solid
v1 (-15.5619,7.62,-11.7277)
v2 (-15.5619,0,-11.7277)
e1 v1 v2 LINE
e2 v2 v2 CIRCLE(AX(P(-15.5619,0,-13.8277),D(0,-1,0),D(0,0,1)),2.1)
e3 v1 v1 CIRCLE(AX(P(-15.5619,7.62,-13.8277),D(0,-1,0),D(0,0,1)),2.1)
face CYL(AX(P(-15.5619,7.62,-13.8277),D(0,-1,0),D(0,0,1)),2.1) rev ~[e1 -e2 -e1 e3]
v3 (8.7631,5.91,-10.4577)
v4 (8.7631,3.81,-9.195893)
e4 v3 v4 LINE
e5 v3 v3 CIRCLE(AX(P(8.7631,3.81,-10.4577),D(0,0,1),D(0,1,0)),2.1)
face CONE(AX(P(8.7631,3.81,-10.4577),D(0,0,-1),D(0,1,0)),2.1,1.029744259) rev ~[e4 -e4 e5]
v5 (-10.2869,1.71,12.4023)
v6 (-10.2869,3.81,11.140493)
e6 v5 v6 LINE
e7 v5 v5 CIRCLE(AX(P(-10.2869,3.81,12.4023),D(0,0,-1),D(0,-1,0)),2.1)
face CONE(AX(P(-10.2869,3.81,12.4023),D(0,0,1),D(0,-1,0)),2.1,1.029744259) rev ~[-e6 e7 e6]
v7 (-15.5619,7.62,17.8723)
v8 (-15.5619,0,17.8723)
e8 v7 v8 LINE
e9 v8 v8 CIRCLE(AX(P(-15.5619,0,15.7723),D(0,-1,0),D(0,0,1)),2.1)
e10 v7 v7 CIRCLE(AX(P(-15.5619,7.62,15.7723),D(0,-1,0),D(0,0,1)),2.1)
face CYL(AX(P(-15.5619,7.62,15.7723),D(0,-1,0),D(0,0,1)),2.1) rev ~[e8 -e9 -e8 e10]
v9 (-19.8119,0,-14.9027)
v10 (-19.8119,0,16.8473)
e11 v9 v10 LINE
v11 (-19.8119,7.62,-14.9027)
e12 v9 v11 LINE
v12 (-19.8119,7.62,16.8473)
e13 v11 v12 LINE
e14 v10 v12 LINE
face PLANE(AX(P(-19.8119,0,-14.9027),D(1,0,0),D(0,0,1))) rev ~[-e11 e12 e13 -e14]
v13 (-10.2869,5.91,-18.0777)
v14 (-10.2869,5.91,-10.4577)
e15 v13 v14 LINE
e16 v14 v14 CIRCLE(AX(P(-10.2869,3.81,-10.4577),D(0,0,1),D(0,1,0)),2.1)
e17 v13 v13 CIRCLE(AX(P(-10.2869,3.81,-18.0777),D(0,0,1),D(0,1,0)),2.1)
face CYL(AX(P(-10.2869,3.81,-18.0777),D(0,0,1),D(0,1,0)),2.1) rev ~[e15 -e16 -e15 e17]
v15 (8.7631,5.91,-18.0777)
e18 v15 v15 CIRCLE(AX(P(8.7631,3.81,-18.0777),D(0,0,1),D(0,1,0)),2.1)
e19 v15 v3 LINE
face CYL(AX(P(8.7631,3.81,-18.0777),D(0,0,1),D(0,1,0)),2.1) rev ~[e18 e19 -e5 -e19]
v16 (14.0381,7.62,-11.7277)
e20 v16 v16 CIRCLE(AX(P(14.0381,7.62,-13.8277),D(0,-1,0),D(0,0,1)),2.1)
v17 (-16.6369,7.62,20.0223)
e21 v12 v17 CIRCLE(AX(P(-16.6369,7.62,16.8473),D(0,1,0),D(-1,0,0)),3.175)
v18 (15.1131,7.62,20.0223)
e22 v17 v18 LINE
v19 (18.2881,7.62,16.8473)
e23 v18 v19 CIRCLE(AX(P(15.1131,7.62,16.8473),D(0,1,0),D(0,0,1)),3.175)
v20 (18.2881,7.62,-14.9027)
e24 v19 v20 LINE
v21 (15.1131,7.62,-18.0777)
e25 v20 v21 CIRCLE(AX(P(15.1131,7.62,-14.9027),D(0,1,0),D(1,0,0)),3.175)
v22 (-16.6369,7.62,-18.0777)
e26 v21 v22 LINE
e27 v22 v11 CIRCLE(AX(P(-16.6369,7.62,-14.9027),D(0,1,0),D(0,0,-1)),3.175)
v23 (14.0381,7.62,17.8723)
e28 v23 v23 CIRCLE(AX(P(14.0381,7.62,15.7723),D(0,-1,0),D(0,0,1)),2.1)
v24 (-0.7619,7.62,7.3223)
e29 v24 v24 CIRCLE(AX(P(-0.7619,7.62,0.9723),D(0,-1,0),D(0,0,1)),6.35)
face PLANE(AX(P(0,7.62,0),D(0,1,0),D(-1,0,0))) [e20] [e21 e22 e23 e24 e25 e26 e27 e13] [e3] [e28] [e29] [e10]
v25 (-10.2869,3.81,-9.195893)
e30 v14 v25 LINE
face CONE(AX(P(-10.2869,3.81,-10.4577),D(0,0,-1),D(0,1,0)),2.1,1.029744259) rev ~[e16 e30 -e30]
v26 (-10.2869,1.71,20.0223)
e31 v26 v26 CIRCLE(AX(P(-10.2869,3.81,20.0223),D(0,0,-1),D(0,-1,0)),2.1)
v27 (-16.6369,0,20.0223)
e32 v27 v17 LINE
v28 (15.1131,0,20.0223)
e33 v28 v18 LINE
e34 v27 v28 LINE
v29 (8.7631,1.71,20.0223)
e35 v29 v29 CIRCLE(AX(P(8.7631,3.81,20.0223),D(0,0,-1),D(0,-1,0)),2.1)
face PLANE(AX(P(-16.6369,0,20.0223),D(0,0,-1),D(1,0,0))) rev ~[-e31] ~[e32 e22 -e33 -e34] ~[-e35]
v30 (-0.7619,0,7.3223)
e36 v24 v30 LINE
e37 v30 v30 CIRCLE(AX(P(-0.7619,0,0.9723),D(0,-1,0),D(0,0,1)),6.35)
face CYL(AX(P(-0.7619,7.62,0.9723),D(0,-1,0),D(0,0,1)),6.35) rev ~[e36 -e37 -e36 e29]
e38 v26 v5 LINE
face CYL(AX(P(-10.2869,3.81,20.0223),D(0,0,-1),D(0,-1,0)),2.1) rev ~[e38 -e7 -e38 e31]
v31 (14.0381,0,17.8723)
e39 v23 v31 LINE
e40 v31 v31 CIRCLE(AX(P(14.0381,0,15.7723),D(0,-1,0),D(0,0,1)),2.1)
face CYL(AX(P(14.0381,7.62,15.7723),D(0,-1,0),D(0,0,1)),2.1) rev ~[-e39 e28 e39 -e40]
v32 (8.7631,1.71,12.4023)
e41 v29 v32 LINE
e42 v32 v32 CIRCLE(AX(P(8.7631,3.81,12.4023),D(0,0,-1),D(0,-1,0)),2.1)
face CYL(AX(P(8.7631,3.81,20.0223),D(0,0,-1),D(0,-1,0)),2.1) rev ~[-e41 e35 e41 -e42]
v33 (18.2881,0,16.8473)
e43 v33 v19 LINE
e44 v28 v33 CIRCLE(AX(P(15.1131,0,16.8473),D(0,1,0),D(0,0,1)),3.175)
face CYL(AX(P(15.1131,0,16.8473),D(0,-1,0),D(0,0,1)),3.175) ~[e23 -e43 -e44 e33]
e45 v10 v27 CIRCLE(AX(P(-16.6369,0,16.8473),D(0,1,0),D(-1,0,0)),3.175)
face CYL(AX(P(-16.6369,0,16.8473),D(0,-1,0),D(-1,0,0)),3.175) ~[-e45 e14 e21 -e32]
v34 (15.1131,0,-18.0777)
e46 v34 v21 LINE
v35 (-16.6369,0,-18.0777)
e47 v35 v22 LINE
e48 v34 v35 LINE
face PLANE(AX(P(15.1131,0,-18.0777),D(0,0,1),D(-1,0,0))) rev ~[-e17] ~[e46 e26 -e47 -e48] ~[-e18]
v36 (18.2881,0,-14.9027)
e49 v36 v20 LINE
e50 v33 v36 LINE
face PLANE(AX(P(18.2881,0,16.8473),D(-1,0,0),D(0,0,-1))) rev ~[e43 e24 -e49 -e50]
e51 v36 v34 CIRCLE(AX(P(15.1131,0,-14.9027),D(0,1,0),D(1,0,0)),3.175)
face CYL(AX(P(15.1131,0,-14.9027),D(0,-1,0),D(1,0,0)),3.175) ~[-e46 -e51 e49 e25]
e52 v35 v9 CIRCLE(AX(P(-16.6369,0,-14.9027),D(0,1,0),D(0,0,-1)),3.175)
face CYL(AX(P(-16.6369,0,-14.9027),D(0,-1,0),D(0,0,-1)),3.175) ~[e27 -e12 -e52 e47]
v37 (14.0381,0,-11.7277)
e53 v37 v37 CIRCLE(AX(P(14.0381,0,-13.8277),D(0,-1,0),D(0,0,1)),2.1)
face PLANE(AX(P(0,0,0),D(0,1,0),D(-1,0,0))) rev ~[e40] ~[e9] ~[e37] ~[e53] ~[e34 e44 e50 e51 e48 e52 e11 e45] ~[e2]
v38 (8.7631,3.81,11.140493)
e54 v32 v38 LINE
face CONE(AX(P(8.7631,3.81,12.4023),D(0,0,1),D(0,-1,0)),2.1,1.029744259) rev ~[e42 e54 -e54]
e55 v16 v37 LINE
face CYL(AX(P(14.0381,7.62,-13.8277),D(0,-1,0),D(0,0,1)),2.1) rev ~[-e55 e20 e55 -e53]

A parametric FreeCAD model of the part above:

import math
import FreeCAD as App
import Part
import Sketcher

V = App.Vector
Q = App.Units.Quantity

doc = App.newDocument("Part")
params = doc.addObject("Spreadsheet::Sheet", "Params")
for row, (alias, value) in enumerate([
    ("sketch1_radius", "0.125 in"),
    ("sketch1_width", "1.25 in"),
    ("pad1_length", "0.3 in"),
    ("hole_diameter", "4.2 mm"),
    ("sketch3_diameter", "0.5 in"),
    ("hole2_diameter", "0.5 in"),
    ("hole3_diameter", "4.2 mm"),
    ("hole3_depth", "0.3 in"),
    ("hole4_diameter", "4.2 mm"),
    ("hole4_depth", "0.3 in"),
], start=1):
    params.set(f"A{row}", alias)
    params.set(f"B{row}", "=" + value)
    params.setAlias(f"B{row}", alias)

body = doc.addObject("PartDesign::Body", "Body")

# Sketch on XZ plane
sketch1 = body.newObject("Sketcher::SketchObject", "Sketch")
sketch1.AttachmentSupport = (doc.getObject("XZ_Plane"), [""])
sketch1.MapMode = "FlatFace"
sketch1.addGeometry([
    Part.ArcOfCircle(Part.Circle(V(-16.6, 16.8, 0), V(0, 0, 1), 3.2), math.radians(90), math.radians(180)),  # 0
    Part.LineSegment(V(-16.6, 20, 0), V(15.1, 20, 0)),  # 1
    Part.ArcOfCircle(Part.Circle(V(15.1, 16.8, 0), V(0, 0, 1), 3.2), math.radians(0), math.radians(90)),  # 2
    Part.LineSegment(V(18.3, 16.8, 0), V(18.3, -14.9, 0)),  # 3
    Part.ArcOfCircle(Part.Circle(V(15.1, -14.9, 0), V(0, 0, 1), 3.2), math.radians(-90), math.radians(0)),  # 4
    Part.LineSegment(V(15.1, -18.1, 0), V(-16.6, -18.1, 0)),  # 5
    Part.ArcOfCircle(Part.Circle(V(-16.6, -14.9, 0), V(0, 0, 1), 3.2), math.radians(180), math.radians(270)),  # 6
    Part.LineSegment(V(-19.8, -14.9, 0), V(-19.8, 16.8, 0)),  # 7
], False)
sketch1.addConstraint([
    Sketcher.Constraint("Tangent", 0, 1, 1, 1),
    Sketcher.Constraint("Tangent", 1, 2, 2, 2),
    Sketcher.Constraint("Tangent", 2, 1, 3, 1),
    Sketcher.Constraint("Tangent", 3, 2, 4, 2),
    Sketcher.Constraint("Tangent", 4, 1, 5, 1),
    Sketcher.Constraint("Tangent", 5, 2, 6, 2),
    Sketcher.Constraint("Tangent", 6, 1, 7, 1),
    Sketcher.Constraint("Tangent", 7, 2, 0, 2),
    Sketcher.Constraint("Horizontal", 1),
    Sketcher.Constraint("Vertical", 3),
    Sketcher.Constraint("Horizontal", 5),
    Sketcher.Constraint("Vertical", 7),
    Sketcher.Constraint("Equal", 0, 2),
    Sketcher.Constraint("Equal", 2, 4),
    Sketcher.Constraint("Equal", 4, 6),
    Sketcher.Constraint("Equal", 5, 3),
    Sketcher.Constraint("Radius", 0, Q("0.125 in")),
    Sketcher.Constraint("DistanceX", 1, 1, 1, 2, Q("1.25 in")),
    Sketcher.Constraint("DistanceX", -1, 1, 2, 1, Q("0.72 in")),
    Sketcher.Constraint("DistanceY", -1, 1, 0, 3, 16.8473),
])
sketch1.setExpression("Constraints[16]", "Params.sketch1_radius")
sketch1.setExpression("Constraints[17]", "Params.sketch1_width")
pad1 = body.newObject("PartDesign::Pad", "Pad")
pad1.Profile = sketch1
pad1.setExpression("Length", "Params.pad1_length")
pad1.Reversed = True

# Sketch on XZ plane
sketch2 = body.newObject("Sketcher::SketchObject", "Sketch001")
sketch2.AttachmentSupport = (doc.getObject("XZ_Plane"), [""])
sketch2.MapMode = "FlatFace"
sketch2.AttachmentOffset = App.Placement(V(0, 0, -0.3 * 25.4), App.Rotation())
sketch2.addGeometry([
    Part.Circle(V(-15.6, 15.8, 0), V(0, 0, 1), 2.1),
    Part.Circle(V(-15.6, -13.8, 0), V(0, 0, 1), 2.1),
    Part.Circle(V(14, -13.8, 0), V(0, 0, 1), 2.1),
    Part.Circle(V(14, 15.8, 0), V(0, 0, 1), 2.1),
], False)
sketch2.addConstraint([
    Sketcher.Constraint("Equal", 0, 1),
    Sketcher.Constraint("Equal", 1, 2),
    Sketcher.Constraint("Equal", 2, 3),
    Sketcher.Constraint("Horizontal", 1, 3, 2, 3),
    Sketcher.Constraint("Horizontal", 0, 3, 3, 3),
    Sketcher.Constraint("Vertical", 0, 3, 1, 3),
    Sketcher.Constraint("Vertical", 2, 3, 3, 3),
    Sketcher.Constraint("Diameter", 0, 4.2),
    Sketcher.Constraint("DistanceY", 1, 3, -1, 1, Q("0.5444 in")),
    Sketcher.Constraint("DistanceX", 0, 3, -1, 1, 15.562),
    Sketcher.Constraint("DistanceY", -1, 1, 0, 3, 15.7723),
    Sketcher.Constraint("DistanceX", -1, 1, 2, 3, 14.038),
])
doc.recompute()
hole = body.newObject("PartDesign::Hole", "Hole")
hole.Profile = sketch2
hole.ThreadType = "None"
hole.setExpression("Diameter", "Params.hole_diameter")
hole.DepthType = "ThroughAll"
hole.Reversed = True

# Sketch on XZ plane
sketch3 = body.newObject("Sketcher::SketchObject", "Sketch002")
sketch3.AttachmentSupport = (doc.getObject("XZ_Plane"), [""])
sketch3.MapMode = "FlatFace"
sketch3.AttachmentOffset = App.Placement(V(0, 0, -0.3 * 25.4), App.Rotation())
sketch3.addGeometry(Part.Circle(V(-1, 1, 0), V(0, 0, 1), 6), False)
sketch3.addConstraint([
    Sketcher.Constraint("Diameter", 0, Q("0.5 in")),
    Sketcher.Constraint("DistanceX", 0, 3, -1, 1, Q("0.03 in")),
    Sketcher.Constraint("DistanceY", -1, 1, 0, 3, 0.9723),
])
sketch3.setExpression("Constraints[0]", "Params.sketch3_diameter")
doc.recompute()
hole2 = body.newObject("PartDesign::Hole", "Hole001")
hole2.Profile = sketch3
hole2.ThreadType = "None"
hole2.setExpression("Diameter", "Params.hole2_diameter")
hole2.DepthType = "ThroughAll"
hole2.Reversed = True

# Sketch on XY plane
sketch4 = body.newObject("Sketcher::SketchObject", "Sketch003")
sketch4.AttachmentSupport = (doc.getObject("XY_Plane"), [""])
sketch4.MapMode = "FlatFace"
sketch4.AttachmentOffset = App.Placement(V(0, 0, 20.0223), App.Rotation())
sketch4.addGeometry([
    Part.Circle(V(-10.3, 3.8, 0), V(0, 0, 1), 2.1),
    Part.Circle(V(8.8, 3.8, 0), V(0, 0, 1), 2.1),
], False)
sketch4.addConstraint([
    Sketcher.Constraint("Equal", 0, 1),
    Sketcher.Constraint("Horizontal", 0, 3, 1, 3),
    Sketcher.Constraint("Diameter", 0, 4.2),
    Sketcher.Constraint("DistanceY", -1, 1, 0, 3, Q("0.15 in")),
    Sketcher.Constraint("DistanceX", 0, 3, 1, 3, Q("0.75 in")),
    Sketcher.Constraint("DistanceX", 0, 3, -1, 1, Q("0.405 in")),
])
doc.recompute()
hole3 = body.newObject("PartDesign::Hole", "Hole002")
hole3.Profile = sketch4
hole3.ThreadType = "None"
hole3.setExpression("Diameter", "Params.hole3_diameter")
hole3.DepthType = "Dimension"
hole3.setExpression("Depth", "Params.hole3_depth")
hole3.DrillPoint = "Angled"
hole3.DrillPointAngle = 118

# Sketch on XY plane
sketch5 = body.newObject("Sketcher::SketchObject", "Sketch004")
sketch5.AttachmentSupport = (doc.getObject("XY_Plane"), [""])
sketch5.MapMode = "FlatFace"
sketch5.AttachmentOffset = App.Placement(V(0, 0, -18.0777), App.Rotation())
sketch5.addGeometry([
    Part.Circle(V(8.8, 3.8, 0), V(0, 0, 1), 2.1),
    Part.Circle(V(-10.3, 3.8, 0), V(0, 0, 1), 2.1),
], False)
sketch5.addConstraint([
    Sketcher.Constraint("Equal", 0, 1),
    Sketcher.Constraint("Horizontal", 0, 3, 1, 3),
    Sketcher.Constraint("Diameter", 0, 4.2),
    Sketcher.Constraint("DistanceY", -1, 1, 0, 3, Q("0.15 in")),
    Sketcher.Constraint("DistanceX", 1, 3, 0, 3, Q("0.75 in")),
    Sketcher.Constraint("DistanceX", -1, 1, 0, 3, Q("0.345 in")),
])
doc.recompute()
hole4 = body.newObject("PartDesign::Hole", "Hole003")
hole4.Profile = sketch5
hole4.ThreadType = "None"
hole4.setExpression("Diameter", "Params.hole4_diameter")
hole4.DepthType = "Dimension"
hole4.setExpression("Depth", "Params.hole4_depth")
hole4.DrillPoint = "Angled"
hole4.DrillPointAngle = 118
hole4.Reversed = True

doc.recompute()
